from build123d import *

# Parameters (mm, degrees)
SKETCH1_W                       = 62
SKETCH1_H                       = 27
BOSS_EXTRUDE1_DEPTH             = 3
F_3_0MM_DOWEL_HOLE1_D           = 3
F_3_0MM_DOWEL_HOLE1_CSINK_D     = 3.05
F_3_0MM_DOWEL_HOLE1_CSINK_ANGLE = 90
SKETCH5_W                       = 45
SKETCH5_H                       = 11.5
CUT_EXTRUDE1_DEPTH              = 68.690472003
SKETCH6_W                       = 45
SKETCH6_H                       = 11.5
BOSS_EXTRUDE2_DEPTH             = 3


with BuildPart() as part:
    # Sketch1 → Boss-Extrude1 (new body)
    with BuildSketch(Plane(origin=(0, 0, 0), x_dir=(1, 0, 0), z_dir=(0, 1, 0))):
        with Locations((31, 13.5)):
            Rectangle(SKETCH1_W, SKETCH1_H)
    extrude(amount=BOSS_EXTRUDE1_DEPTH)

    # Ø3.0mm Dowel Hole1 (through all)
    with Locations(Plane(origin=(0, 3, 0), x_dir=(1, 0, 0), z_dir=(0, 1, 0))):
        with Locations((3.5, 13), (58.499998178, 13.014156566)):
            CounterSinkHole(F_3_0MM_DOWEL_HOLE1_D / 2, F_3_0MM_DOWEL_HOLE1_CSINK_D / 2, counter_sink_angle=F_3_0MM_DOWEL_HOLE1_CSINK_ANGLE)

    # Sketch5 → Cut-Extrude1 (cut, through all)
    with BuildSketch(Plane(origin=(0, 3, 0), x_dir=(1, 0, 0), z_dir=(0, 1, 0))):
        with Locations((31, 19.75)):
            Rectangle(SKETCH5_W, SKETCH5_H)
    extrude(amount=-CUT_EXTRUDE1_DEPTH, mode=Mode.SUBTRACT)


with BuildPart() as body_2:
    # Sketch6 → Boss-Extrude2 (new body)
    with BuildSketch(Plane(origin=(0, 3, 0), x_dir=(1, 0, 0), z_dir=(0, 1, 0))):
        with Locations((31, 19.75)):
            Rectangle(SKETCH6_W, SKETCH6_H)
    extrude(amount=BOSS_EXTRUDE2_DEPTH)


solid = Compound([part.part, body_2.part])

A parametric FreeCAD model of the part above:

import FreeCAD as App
import Part
import Sketcher
from FreeCAD import Vector
Q = App.Units.Quantity


def add_polygon(sketch, points):
    """Adds a closed chain of lines whose ends are joined by coincident constraints."""
    first, n = sketch.GeometryCount, len(points)
    for a, b in zip(points, points[1:] + points[:1]):
        sketch.addGeometry(Part.LineSegment(App.Vector(*a, 0), App.Vector(*b, 0)), False)
    for i in range(n):
        sketch.addConstraint(Sketcher.Constraint("Coincident", first + i, 2, first + (i + 1) % n, 1))

doc = App.newDocument("Part")
body = doc.addObject("PartDesign::Body", "Body")

# Sketch on XZ plane
sketch1 = body.newObject("Sketcher::SketchObject", "Sketch")
sketch1.AttachmentSupport = (doc.getObject("XZ_Plane"), [""])
sketch1.MapMode = "FlatFace"
add_polygon(sketch1, [(0, -27), (0, 0), (62, 0), (62, -27)])  # lines 0-3
sketch1.addConstraint([
    Sketcher.Constraint("Vertical", 0),
    Sketcher.Constraint("Horizontal", 1),
    Sketcher.Constraint("Vertical", 2),
    Sketcher.Constraint("Horizontal", 3),
    Sketcher.Constraint("Coincident", 0, 2, -1, 1),
    Sketcher.Constraint("DistanceX", 1, 1, 1, 2, Q("62 mm")),
    Sketcher.Constraint("DistanceY", 0, 1, 0, 2, Q("27 mm")),
])
pad1 = body.newObject("PartDesign::Pad", "Pad")
pad1.Profile = sketch1
pad1.Length = 3
pad1.Reversed = True

# Sketch on XZ plane
sketch2 = body.newObject("Sketcher::SketchObject", "Sketch001")
sketch2.AttachmentSupport = (doc.getObject("XZ_Plane"), [""])
sketch2.MapMode = "FlatFace"
sketch2.AttachmentOffset = App.Placement(Vector(0, 0, -3), App.Rotation())
sketch2.addGeometry([
    Part.Circle(Vector(3.5, -13, 0), Vector(0, 0, 1), 1.5),
    Part.Circle(Vector(58.5, -13, 0), Vector(0, 0, 1), 1.5),
], False)
sketch2.addConstraint([
    Sketcher.Constraint("Equal", 0, 1),
    Sketcher.Constraint("Diameter", 0, Q("3 mm")),
    Sketcher.Constraint("DistanceY", 0, 3, -1, 1, Q("13 mm")),
    Sketcher.Constraint("DistanceX", 0, 3, 1, 3, Q("54.999998 mm")),
    Sketcher.Constraint("DistanceX", -1, 1, 0, 3, Q("3.5 mm")),
    Sketcher.Constraint("DistanceY", 1, 3, -1, 1, Q("13.014157 mm")),
])
doc.recompute()
hole = body.newObject("PartDesign::Hole", "Hole")
hole.Profile = sketch2
hole.ThreadType = "None"
hole.Diameter = 3
hole.DepthType = "ThroughAll"
hole.HoleCutType = "Countersink"
hole.HoleCutDiameter = 3.05
hole.HoleCutCountersinkAngle = 90
hole.Reversed = True

# Sketch on XZ plane
sketch3 = body.newObject("Sketcher::SketchObject", "Sketch002")
sketch3.AttachmentSupport = (doc.getObject("XZ_Plane"), [""])
sketch3.MapMode = "FlatFace"
sketch3.AttachmentOffset = App.Placement(Vector(0, 0, -3), App.Rotation())
add_polygon(sketch3, [(8, -26), (8, -14), (54, -14), (54, -26)])  # lines 0-3
sketch3.addConstraint([
    Sketcher.Constraint("Vertical", 0),
    Sketcher.Constraint("Horizontal", 1),
    Sketcher.Constraint("Vertical", 2),
    Sketcher.Constraint("Horizontal", 3),
    Sketcher.Constraint("DistanceX", 1, 1, 1, 2, Q("45 mm")),
    Sketcher.Constraint("DistanceY", 0, 1, 0, 2, Q("11.5 mm")),
    Sketcher.Constraint("DistanceY", 0, 2, -1, 1, Q("14 mm")),
    Sketcher.Constraint("DistanceX", -1, 1, 0, 2, Q("8.5 mm")),
])
pocket1 = body.newObject("PartDesign::Pocket", "Pocket")
pocket1.Profile = sketch3
pocket1.Type = "ThroughAll"
pocket1.Reversed = True
body2 = doc.addObject("PartDesign::Body", "Body001")

# Sketch on XZ plane
sketch4 = body2.newObject("Sketcher::SketchObject", "Sketch003")
sketch4.AttachmentSupport = (doc.getObject("XZ_Plane001"), [""])
sketch4.MapMode = "FlatFace"
sketch4.AttachmentOffset = App.Placement(Vector(0, 0, -3), App.Rotation())
add_polygon(sketch4, [(8, -26), (8, -14), (54, -14), (54, -26)])  # lines 0-3
sketch4.addConstraint([
    Sketcher.Constraint("Vertical", 0),
    Sketcher.Constraint("Horizontal", 1),
    Sketcher.Constraint("Vertical", 2),
    Sketcher.Constraint("Horizontal", 3),
    Sketcher.Constraint("DistanceX", 1, 1, 1, 2, Q("45 mm")),
    Sketcher.Constraint("DistanceY", 0, 1, 0, 2, Q("11.5 mm")),
    Sketcher.Constraint("DistanceY", 0, 2, -1, 1, Q("14 mm")),
    Sketcher.Constraint("DistanceX", -1, 1, 0, 2, Q("8.5 mm")),
])
pad2 = body2.newObject("PartDesign::Pad", "Pad001")
pad2.Profile = sketch4
pad2.Length = 3
pad2.Reversed = True

doc.recompute()
